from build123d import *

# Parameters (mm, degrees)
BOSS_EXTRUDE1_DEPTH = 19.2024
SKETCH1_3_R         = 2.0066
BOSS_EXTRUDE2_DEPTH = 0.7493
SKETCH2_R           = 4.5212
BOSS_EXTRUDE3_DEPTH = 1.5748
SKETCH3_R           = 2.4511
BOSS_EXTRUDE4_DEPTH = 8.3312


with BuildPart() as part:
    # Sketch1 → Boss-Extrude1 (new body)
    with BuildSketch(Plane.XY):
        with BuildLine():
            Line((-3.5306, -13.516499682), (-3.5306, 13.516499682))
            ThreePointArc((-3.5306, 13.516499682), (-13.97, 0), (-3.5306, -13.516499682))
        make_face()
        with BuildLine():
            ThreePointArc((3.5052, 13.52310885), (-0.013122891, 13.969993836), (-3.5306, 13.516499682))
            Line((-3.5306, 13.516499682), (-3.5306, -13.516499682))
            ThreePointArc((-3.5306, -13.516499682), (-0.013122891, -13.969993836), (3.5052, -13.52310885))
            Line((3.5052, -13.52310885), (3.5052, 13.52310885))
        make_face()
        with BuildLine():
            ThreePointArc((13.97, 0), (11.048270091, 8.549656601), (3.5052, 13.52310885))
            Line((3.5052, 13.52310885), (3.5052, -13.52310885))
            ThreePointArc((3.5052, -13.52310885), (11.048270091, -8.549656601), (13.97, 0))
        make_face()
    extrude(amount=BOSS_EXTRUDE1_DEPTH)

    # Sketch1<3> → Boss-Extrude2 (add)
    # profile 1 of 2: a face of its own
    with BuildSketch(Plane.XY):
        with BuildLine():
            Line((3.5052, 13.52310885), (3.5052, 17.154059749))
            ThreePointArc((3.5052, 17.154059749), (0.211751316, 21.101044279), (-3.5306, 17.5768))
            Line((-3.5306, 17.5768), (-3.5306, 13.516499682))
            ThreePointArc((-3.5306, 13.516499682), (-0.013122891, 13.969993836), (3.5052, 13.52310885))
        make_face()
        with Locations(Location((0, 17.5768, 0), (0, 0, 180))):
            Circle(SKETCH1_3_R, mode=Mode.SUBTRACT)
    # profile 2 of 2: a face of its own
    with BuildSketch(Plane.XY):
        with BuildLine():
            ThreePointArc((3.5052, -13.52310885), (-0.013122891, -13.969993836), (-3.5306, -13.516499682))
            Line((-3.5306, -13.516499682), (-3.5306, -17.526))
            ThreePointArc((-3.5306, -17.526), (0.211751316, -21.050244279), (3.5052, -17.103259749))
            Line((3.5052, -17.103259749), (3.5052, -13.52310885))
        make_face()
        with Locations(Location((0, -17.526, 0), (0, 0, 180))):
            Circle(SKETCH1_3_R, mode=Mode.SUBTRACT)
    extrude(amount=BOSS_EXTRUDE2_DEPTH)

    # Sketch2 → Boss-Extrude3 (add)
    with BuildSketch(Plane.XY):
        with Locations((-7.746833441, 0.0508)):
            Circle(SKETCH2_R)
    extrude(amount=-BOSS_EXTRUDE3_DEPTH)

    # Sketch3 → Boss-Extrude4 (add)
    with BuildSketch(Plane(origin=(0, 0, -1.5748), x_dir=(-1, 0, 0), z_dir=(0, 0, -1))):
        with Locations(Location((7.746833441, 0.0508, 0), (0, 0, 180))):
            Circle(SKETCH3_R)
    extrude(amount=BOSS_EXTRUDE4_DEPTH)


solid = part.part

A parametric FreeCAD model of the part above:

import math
import FreeCAD as App
import Part
import Sketcher
from FreeCAD import Vector
Q = App.Units.Quantity

doc = App.newDocument("Part")
params = doc.addObject("Spreadsheet::Sheet", "Params")
for row, (alias, value) in enumerate([
    ("sketch1_radius", "0.55 in"),
    ("pad1_length", "0.756 in"),
    ("sketch2_radius", "0.55 in"),
    ("sketch2_diameter", "0.158 in"),
    ("sketch2_radius2", "0.139 in"),
    ("pad2_length", "0.0295 in"),
    ("sketch3_diameter", "0.356 in"),
    ("pad3_length", "0.062 in"),
    ("sketch4_diameter", "0.193 in"),
    ("pad4_length", "0.328 in"),
], start=1):
    params.set(f"A{row}", alias)
    params.set(f"B{row}", "=" + value)
    params.setAlias(f"B{row}", alias)

body = doc.addObject("PartDesign::Body", "Body")

sketch1 = body.newObject("Sketcher::SketchObject", "Sketch")
sketch1.AttachmentSupport = (doc.getObject("XY_Plane"), [""])
sketch1.MapMode = "FlatFace"
sketch1.addGeometry(Part.ArcOfCircle(Part.Circle(Vector(0, 0, 0), Vector(0, 0, 1), 13.97), math.radians(104.638957), math.radians(255.361043)), False)
sketch1.addGeometry(Part.ArcOfCircle(Part.Circle(Vector(0, 0, 0), Vector(0, 0, 1), 13.97), math.radians(-104.638957), math.radians(-75.468686)), False)
sketch1.addGeometry(Part.ArcOfCircle(Part.Circle(Vector(0, 0, 0), Vector(0, 0, 1), 13.97), math.radians(-75.468686), math.radians(0)), False)
sketch1.addGeometry(Part.ArcOfCircle(Part.Circle(Vector(0, 0, 0), Vector(0, 0, 1), 13.97), math.radians(0), math.radians(75.468686)), False)
sketch1.addGeometry(Part.ArcOfCircle(Part.Circle(Vector(0, 0, 0), Vector(0, 0, 1), 13.97), math.radians(75.468686), math.radians(104.638957)), False)
sketch1.addConstraint(Sketcher.Constraint("Tangent", 0, 2, 1, 1))
sketch1.addConstraint(Sketcher.Constraint("Tangent", 1, 2, 2, 1))
sketch1.addConstraint(Sketcher.Constraint("Tangent", 2, 2, 3, 1))
sketch1.addConstraint(Sketcher.Constraint("Tangent", 3, 2, 4, 1))
sketch1.addConstraint(Sketcher.Constraint("Tangent", 4, 2, 0, 1))
sketch1.addConstraint(Sketcher.Constraint("Coincident", 0, 3, -1, 1))
sketch1.addConstraint(Sketcher.Constraint("Coincident", 2, 3, -1, 1))
sketch1.addConstraint(Sketcher.Constraint("PointOnObject", 2, 2, -1))
sketch1.addConstraint(Sketcher.Constraint("Vertical", 1, 2, 3, 2))
sketch1.addConstraint(Sketcher.Constraint("Vertical", 0, 2, 4, 2))
sketch1.addConstraint(Sketcher.Constraint("Radius", 0, Q("0.55 in")))
sketch1.addConstraint(Sketcher.Constraint("DistanceX", 0, 2, -1, 1, Q("0.139 in")))
sketch1.addConstraint(Sketcher.Constraint("DistanceX", -1, 1, 1, 2, Q("0.138 in")))
sketch1.setExpression("Constraints[10]", "Params.sketch1_radius")
pad1 = body.newObject("PartDesign::Pad", "Pad")
pad1.Profile = sketch1
pad1.setExpression("Length", "Params.pad1_length")

sketch2 = body.newObject("Sketcher::SketchObject", "Sketch001")
sketch2.AttachmentSupport = (doc.getObject("XY_Plane"), [""])
sketch2.MapMode = "FlatFace"
sketch2.addGeometry(Part.LineSegment(Vector(3.5052, 13.523109, 0), Vector(3.5052, 17.15406, 0)), False)
sketch2.addGeometry(Part.ArcOfCircle(Part.Circle(Vector(0, 17.5768, 0), Vector(0, 0, 1), 3.5306), math.radians(-6.876872), math.radians(180)), False)
sketch2.addGeometry(Part.LineSegment(Vector(-3.5306, 17.5768, 0), Vector(-3.5306, 13.5165, 0)), False)
sketch2.addGeometry(Part.ArcOfCircle(Part.Circle(Vector(0, 0, 0), Vector(0, 0, 1), 13.97), math.radians(75.468686), math.radians(104.638957)), False)
sketch2.addGeometry(Part.Circle(Vector(0, 17.5768, 0), Vector(0, 0, 1), 2.0066), False)
sketch2.addGeometry(Part.ArcOfCircle(Part.Circle(Vector(0, 0, 0), Vector(0, 0, 1), 13.97), math.radians(-104.638957), math.radians(-75.468686)), False)
sketch2.addGeometry(Part.LineSegment(Vector(-3.5306, -13.5165, 0), Vector(-3.5306, -17.526, 0)), False)
sketch2.addGeometry(Part.ArcOfCircle(Part.Circle(Vector(0, -17.526, 0), Vector(0, 0, 1), 3.5306), math.radians(180), math.radians(366.876872)), False)
sketch2.addGeometry(Part.LineSegment(Vector(3.5052, -17.10326, 0), Vector(3.5052, -13.523109, 0)), False)
sketch2.addGeometry(Part.Circle(Vector(0, -17.526, 0), Vector(0, 0, 1), 2.0066), False)
sketch2.addConstraint(Sketcher.Constraint("Coincident", 0, 2, 1, 1))
sketch2.addConstraint(Sketcher.Constraint("Tangent", 1, 2, 2, 1))
sketch2.addConstraint(Sketcher.Constraint("Coincident", 2, 2, 3, 2))
sketch2.addConstraint(Sketcher.Constraint("Coincident", 3, 1, 0, 1))
sketch2.addConstraint(Sketcher.Constraint("Coincident", 5, 1, 6, 1))
sketch2.addConstraint(Sketcher.Constraint("Tangent", 6, 2, 7, 1))
sketch2.addConstraint(Sketcher.Constraint("Coincident", 7, 2, 8, 1))
sketch2.addConstraint(Sketcher.Constraint("Coincident", 8, 2, 5, 2))
sketch2.addConstraint(Sketcher.Constraint("Vertical", 0))
sketch2.addConstraint(Sketcher.Constraint("Vertical", 2))
sketch2.addConstraint(Sketcher.Constraint("Vertical", 6))
sketch2.addConstraint(Sketcher.Constraint("Vertical", 8))
sketch2.addConstraint(Sketcher.Constraint("Coincident", 3, 3, -1, 1))
sketch2.addConstraint(Sketcher.Constraint("Coincident", 5, 3, -1, 1))
sketch2.addConstraint(Sketcher.Constraint("Coincident", 4, 3, 1, 3))
sketch2.addConstraint(Sketcher.Constraint("Coincident", 9, 3, 7, 3))
sketch2.addConstraint(Sketcher.Constraint("Equal", 3, 5))
sketch2.addConstraint(Sketcher.Constraint("Equal", 1, 7))
sketch2.addConstraint(Sketcher.Constraint("Equal", 4, 9))
sketch2.addConstraint(Sketcher.Constraint("PointOnObject", 1, 3, -2))
sketch2.addConstraint(Sketcher.Constraint("PointOnObject", 7, 3, -2))
sketch2.addConstraint(Sketcher.Constraint("Vertical", 3, 1, 7, 2))
sketch2.addConstraint(Sketcher.Constraint("Radius", 3, Q("0.55 in")))
sketch2.addConstraint(Sketcher.Constraint("Diameter", 4, Q("0.158 in")))
sketch2.addConstraint(Sketcher.Constraint("Radius", 1, Q("0.139 in")))
sketch2.addConstraint(Sketcher.Constraint("DistanceY", 7, 3, -1, 1, Q("0.69 in")))
sketch2.addConstraint(Sketcher.Constraint("DistanceY", -1, 1, 1, 3, Q("0.692 in")))
sketch2.addConstraint(Sketcher.Constraint("DistanceX", -1, 1, 0, 2, Q("0.138 in")))
sketch2.setExpression("Constraints[22]", "Params.sketch2_radius")
sketch2.setExpression("Constraints[23]", "Params.sketch2_diameter")
sketch2.setExpression("Constraints[24]", "Params.sketch2_radius2")
pad2 = body.newObject("PartDesign::Pad", "Pad001")
pad2.Profile = sketch2
pad2.setExpression("Length", "Params.pad2_length")

sketch3 = body.newObject("Sketcher::SketchObject", "Sketch002")
sketch3.AttachmentSupport = (doc.getObject("XY_Plane"), [""])
sketch3.MapMode = "FlatFace"
sketch3.addGeometry(Part.Circle(Vector(-7.746833, 0.0508, 0), Vector(0, 0, 1), 4.5212), False)
sketch3.addConstraint(Sketcher.Constraint("Diameter", 0, Q("0.356 in")))
sketch3.addConstraint(Sketcher.Constraint("DistanceY", -1, 1, 0, 3, Q("0.002 in")))
sketch3.addConstraint(Sketcher.Constraint("DistanceX", 0, 3, -1, 1, 7.746833))
sketch3.setExpression("Constraints[0]", "Params.sketch3_diameter")
pad3 = body.newObject("PartDesign::Pad", "Pad002")
pad3.Profile = sketch3
pad3.setExpression("Length", "Params.pad3_length")
pad3.Reversed = True

sketch4 = body.newObject("Sketcher::SketchObject", "Sketch003")
sketch4.AttachmentSupport = (doc.getObject("XY_Plane"), [""])
sketch4.MapMode = "FlatFace"
sketch4.AttachmentOffset = App.Placement(Vector(0, 0, -0.062 * 25.4), App.Rotation())
sketch4.addGeometry(Part.Circle(Vector(-7.746833, 0.0508, 0), Vector(0, 0, 1), 2.4511), False)
sketch4.addConstraint(Sketcher.Constraint("Diameter", 0, Q("0.193 in")))
sketch4.addConstraint(Sketcher.Constraint("DistanceY", -1, 1, 0, 3, Q("0.002 in")))
sketch4.addConstraint(Sketcher.Constraint("DistanceX", 0, 3, -1, 1, 7.746833))
sketch4.setExpression("Constraints[0]", "Params.sketch4_diameter")
pad4 = body.newObject("PartDesign::Pad", "Pad003")
pad4.Profile = sketch4
pad4.setExpression("Length", "Params.pad4_length")
pad4.Reversed = True

doc.recompute()
